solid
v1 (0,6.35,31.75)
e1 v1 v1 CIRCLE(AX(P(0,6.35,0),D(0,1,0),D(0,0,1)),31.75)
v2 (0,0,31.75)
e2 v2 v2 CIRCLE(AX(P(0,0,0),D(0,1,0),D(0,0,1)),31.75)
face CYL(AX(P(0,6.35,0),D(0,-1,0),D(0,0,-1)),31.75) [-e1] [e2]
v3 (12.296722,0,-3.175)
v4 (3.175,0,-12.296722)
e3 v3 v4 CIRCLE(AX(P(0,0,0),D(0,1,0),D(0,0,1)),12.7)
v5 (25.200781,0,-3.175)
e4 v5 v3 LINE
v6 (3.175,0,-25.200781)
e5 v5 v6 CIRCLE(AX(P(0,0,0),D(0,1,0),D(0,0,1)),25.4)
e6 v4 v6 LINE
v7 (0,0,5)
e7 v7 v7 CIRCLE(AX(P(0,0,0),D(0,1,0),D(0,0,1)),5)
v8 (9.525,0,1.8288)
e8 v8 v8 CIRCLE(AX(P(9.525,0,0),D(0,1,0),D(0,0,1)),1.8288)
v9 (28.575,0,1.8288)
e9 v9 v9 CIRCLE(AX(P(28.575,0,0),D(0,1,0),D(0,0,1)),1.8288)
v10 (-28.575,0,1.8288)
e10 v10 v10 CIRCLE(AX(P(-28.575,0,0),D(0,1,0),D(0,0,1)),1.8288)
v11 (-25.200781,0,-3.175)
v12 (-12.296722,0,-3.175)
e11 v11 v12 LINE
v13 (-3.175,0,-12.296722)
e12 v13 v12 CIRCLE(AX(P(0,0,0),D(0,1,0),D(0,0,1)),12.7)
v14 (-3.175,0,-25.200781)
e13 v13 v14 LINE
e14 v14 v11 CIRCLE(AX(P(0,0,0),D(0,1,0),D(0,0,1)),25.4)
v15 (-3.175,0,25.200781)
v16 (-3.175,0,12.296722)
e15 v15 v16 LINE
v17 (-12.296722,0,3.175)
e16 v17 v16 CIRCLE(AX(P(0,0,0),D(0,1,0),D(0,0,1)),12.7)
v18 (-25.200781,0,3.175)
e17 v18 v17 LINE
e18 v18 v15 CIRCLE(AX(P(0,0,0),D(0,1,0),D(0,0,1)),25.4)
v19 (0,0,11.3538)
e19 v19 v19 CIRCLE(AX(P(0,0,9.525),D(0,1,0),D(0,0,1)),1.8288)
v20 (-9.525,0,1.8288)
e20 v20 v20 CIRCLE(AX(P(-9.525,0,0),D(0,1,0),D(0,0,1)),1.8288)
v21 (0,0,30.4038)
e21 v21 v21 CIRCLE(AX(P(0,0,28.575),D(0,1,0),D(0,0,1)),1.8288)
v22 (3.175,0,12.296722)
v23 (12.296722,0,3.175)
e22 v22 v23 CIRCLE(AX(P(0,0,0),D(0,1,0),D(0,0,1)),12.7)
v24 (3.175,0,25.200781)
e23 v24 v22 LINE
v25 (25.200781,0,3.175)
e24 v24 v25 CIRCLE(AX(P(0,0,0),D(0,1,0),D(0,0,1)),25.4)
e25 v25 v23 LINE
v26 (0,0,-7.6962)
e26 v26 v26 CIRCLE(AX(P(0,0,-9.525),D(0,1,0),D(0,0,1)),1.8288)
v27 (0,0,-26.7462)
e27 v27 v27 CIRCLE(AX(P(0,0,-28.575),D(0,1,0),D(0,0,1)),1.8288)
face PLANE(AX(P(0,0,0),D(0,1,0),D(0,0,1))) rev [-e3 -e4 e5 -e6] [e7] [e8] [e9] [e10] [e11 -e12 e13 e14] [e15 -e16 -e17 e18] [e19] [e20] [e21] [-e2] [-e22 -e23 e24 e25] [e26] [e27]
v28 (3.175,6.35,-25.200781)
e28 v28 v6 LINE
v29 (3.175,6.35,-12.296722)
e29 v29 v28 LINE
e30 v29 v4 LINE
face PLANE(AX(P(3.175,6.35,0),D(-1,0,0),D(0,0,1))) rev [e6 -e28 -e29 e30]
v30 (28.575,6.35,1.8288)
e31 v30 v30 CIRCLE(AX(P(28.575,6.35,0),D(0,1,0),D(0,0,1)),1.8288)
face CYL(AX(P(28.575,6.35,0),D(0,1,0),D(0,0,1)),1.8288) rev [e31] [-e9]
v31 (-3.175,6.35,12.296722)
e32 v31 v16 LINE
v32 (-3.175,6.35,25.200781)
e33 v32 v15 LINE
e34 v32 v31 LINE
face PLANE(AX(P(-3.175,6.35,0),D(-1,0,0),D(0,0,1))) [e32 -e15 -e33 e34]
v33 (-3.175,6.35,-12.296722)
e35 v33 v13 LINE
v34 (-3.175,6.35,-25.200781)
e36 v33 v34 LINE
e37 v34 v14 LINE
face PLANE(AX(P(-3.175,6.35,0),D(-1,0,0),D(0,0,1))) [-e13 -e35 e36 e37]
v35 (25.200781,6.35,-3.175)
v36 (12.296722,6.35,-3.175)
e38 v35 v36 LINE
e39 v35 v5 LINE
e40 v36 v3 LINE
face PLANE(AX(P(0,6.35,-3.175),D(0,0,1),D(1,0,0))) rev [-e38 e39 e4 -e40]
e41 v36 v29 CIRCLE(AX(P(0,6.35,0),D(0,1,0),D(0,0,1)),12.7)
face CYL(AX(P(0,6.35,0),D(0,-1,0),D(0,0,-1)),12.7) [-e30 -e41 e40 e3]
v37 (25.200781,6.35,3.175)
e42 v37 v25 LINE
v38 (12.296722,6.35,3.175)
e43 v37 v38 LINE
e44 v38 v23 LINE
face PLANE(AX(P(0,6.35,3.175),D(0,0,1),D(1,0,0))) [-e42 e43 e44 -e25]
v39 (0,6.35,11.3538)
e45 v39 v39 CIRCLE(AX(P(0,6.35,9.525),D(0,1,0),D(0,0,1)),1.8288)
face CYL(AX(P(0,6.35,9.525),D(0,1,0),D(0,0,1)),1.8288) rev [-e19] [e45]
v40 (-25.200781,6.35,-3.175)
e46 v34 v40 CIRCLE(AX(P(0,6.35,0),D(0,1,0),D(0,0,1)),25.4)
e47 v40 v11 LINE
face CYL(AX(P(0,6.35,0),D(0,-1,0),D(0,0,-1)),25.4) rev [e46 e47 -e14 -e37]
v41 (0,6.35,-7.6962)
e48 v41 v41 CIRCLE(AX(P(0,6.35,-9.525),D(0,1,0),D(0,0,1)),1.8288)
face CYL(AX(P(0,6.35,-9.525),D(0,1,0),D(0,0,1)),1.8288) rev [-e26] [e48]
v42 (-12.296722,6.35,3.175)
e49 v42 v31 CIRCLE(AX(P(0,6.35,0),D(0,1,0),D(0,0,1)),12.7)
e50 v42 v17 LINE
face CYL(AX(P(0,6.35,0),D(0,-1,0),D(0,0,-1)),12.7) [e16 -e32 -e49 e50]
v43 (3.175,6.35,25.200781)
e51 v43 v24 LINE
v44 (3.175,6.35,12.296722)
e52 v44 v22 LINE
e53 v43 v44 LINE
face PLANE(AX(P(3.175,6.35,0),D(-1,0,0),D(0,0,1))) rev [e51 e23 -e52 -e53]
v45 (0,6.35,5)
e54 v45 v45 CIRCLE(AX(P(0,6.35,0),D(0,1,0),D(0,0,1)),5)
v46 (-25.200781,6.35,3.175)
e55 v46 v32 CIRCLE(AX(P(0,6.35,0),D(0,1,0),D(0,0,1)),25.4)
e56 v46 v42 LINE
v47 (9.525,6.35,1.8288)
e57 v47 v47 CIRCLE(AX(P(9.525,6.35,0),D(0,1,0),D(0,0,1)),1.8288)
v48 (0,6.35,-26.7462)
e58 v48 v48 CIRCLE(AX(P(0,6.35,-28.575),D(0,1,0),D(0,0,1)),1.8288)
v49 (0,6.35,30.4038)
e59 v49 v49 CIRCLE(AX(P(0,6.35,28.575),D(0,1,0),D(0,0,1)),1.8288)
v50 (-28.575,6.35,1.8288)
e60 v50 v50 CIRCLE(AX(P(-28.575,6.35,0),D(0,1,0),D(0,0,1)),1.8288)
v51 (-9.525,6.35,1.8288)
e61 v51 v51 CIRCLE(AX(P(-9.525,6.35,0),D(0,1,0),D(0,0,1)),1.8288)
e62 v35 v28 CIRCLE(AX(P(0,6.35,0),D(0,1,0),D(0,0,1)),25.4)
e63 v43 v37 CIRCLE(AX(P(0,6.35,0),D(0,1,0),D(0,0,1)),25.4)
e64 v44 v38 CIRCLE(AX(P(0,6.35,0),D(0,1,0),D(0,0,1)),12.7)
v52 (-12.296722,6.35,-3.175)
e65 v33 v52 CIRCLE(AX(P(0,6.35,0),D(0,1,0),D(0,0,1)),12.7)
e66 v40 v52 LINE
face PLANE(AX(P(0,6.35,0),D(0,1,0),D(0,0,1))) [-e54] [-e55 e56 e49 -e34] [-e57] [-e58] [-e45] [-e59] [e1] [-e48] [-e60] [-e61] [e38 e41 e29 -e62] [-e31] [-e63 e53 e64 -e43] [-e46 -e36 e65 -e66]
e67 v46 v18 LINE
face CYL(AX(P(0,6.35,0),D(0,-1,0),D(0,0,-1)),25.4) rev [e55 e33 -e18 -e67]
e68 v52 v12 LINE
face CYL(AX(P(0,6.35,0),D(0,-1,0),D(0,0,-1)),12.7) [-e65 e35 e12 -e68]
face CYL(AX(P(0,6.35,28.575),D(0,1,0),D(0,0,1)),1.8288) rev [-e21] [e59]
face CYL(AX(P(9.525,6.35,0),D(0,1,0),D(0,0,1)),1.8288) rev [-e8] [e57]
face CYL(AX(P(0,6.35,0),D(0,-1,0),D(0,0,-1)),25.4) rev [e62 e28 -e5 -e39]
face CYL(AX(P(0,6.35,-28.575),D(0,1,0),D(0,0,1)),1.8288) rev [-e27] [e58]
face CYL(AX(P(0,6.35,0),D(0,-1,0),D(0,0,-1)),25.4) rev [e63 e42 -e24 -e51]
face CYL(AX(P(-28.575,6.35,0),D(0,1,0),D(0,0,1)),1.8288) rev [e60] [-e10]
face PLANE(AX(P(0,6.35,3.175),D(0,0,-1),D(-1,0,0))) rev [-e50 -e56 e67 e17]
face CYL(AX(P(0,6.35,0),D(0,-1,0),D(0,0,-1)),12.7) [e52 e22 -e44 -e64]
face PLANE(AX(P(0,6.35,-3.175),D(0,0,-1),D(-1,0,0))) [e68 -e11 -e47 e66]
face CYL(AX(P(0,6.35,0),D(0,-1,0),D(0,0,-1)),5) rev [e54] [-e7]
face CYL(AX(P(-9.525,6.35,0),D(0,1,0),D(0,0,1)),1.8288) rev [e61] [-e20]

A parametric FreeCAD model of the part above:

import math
import FreeCAD as App
import Part
import Sketcher
Q = App.Units.Quantity

doc = App.newDocument("Part")
body = doc.addObject("PartDesign::Body", "Body")

# Sketch on XZ plane
sketch1 = body.newObject("Sketcher::SketchObject", "Sketch")
sketch1.AttachmentSupport = (doc.getObject("XZ_Plane"), [""])
sketch1.MapMode = "FlatFace"
sketch1.addGeometry(Part.Circle(App.Vector(0, 0, 0), App.Vector(0, 0, 1), 32), False)
sketch1.addGeometry(Part.ArcOfCircle(Part.Circle(App.Vector(0, 0, 0), App.Vector(0, 0, 1), 25), math.radians(-173), math.radians(-97)), False)
sketch1.addGeometry(Part.LineSegment(App.Vector(-3, -25, 0), App.Vector(-3, -12, 0)), False)
sketch1.addGeometry(Part.ArcOfCircle(Part.Circle(App.Vector(0, 0, 0), App.Vector(0, 0, 1), 13), math.radians(-166), math.radians(-104)), False)
sketch1.addGeometry(Part.LineSegment(App.Vector(-12, -3, 0), App.Vector(-25, -3, 0)), False)
sketch1.addGeometry(Part.ArcOfCircle(Part.Circle(App.Vector(0, 0, 0), App.Vector(0, 0, 1), 25), math.radians(-83), math.radians(-7)), False)
sketch1.addGeometry(Part.LineSegment(App.Vector(25, -3, 0), App.Vector(12, -3, 0)), False)
sketch1.addGeometry(Part.ArcOfCircle(Part.Circle(App.Vector(0, 0, 0), App.Vector(0, 0, 1), 13), math.radians(-76), math.radians(-14)), False)
sketch1.addGeometry(Part.LineSegment(App.Vector(3, -12, 0), App.Vector(3, -25, 0)), False)
sketch1.addGeometry(Part.ArcOfCircle(Part.Circle(App.Vector(0, 0, 0), App.Vector(0, 0, 1), 25), math.radians(7), math.radians(83)), False)
sketch1.addGeometry(Part.LineSegment(App.Vector(3, 25, 0), App.Vector(3, 12, 0)), False)
sketch1.addGeometry(Part.ArcOfCircle(Part.Circle(App.Vector(0, 0, 0), App.Vector(0, 0, 1), 13), math.radians(14), math.radians(76)), False)
sketch1.addGeometry(Part.LineSegment(App.Vector(12, 3, 0), App.Vector(25, 3, 0)), False)
sketch1.addGeometry(Part.ArcOfCircle(Part.Circle(App.Vector(0, 0, 0), App.Vector(0, 0, 1), 25), math.radians(97), math.radians(173)), False)
sketch1.addGeometry(Part.LineSegment(App.Vector(-25, 3, 0), App.Vector(-12, 3, 0)), False)
sketch1.addGeometry(Part.ArcOfCircle(Part.Circle(App.Vector(0, 0, 0), App.Vector(0, 0, 1), 13), math.radians(104), math.radians(166)), False)
sketch1.addGeometry(Part.LineSegment(App.Vector(-3, 12, 0), App.Vector(-3, 25, 0)), False)
sketch1.addGeometry(Part.Circle(App.Vector(0, 0, 0), App.Vector(0, 0, 1), 5), False)
sketch1.addConstraint(Sketcher.Constraint("Coincident", 1, 2, 2, 1))
sketch1.addConstraint(Sketcher.Constraint("Coincident", 2, 2, 3, 2))
sketch1.addConstraint(Sketcher.Constraint("Coincident", 3, 1, 4, 1))
sketch1.addConstraint(Sketcher.Constraint("Coincident", 4, 2, 1, 1))
sketch1.addConstraint(Sketcher.Constraint("Coincident", 5, 2, 6, 1))
sketch1.addConstraint(Sketcher.Constraint("Coincident", 6, 2, 7, 2))
sketch1.addConstraint(Sketcher.Constraint("Coincident", 7, 1, 8, 1))
sketch1.addConstraint(Sketcher.Constraint("Coincident", 8, 2, 5, 1))
sketch1.addConstraint(Sketcher.Constraint("Coincident", 9, 2, 10, 1))
sketch1.addConstraint(Sketcher.Constraint("Coincident", 10, 2, 11, 2))
sketch1.addConstraint(Sketcher.Constraint("Coincident", 11, 1, 12, 1))
sketch1.addConstraint(Sketcher.Constraint("Coincident", 12, 2, 9, 1))
sketch1.addConstraint(Sketcher.Constraint("Coincident", 13, 2, 14, 1))
sketch1.addConstraint(Sketcher.Constraint("Coincident", 14, 2, 15, 2))
sketch1.addConstraint(Sketcher.Constraint("Coincident", 15, 1, 16, 1))
sketch1.addConstraint(Sketcher.Constraint("Coincident", 16, 2, 13, 1))
sketch1.addConstraint(Sketcher.Constraint("Vertical", 2))
sketch1.addConstraint(Sketcher.Constraint("Horizontal", 4))
sketch1.addConstraint(Sketcher.Constraint("Horizontal", 6))
sketch1.addConstraint(Sketcher.Constraint("Vertical", 8))
sketch1.addConstraint(Sketcher.Constraint("Vertical", 10))
sketch1.addConstraint(Sketcher.Constraint("Horizontal", 12))
sketch1.addConstraint(Sketcher.Constraint("Horizontal", 14))
sketch1.addConstraint(Sketcher.Constraint("Vertical", 16))
sketch1.addConstraint(Sketcher.Constraint("Coincident", 0, 3, -1, 1))
sketch1.addConstraint(Sketcher.Constraint("Coincident", 1, 3, -1, 1))
sketch1.addConstraint(Sketcher.Constraint("Coincident", 3, 3, -1, 1))
sketch1.addConstraint(Sketcher.Constraint("Coincident", 5, 3, -1, 1))
sketch1.addConstraint(Sketcher.Constraint("Coincident", 7, 3, -1, 1))
sketch1.addConstraint(Sketcher.Constraint("Coincident", 9, 3, -1, 1))
sketch1.addConstraint(Sketcher.Constraint("Coincident", 11, 3, -1, 1))
sketch1.addConstraint(Sketcher.Constraint("Coincident", 13, 3, -1, 1))
sketch1.addConstraint(Sketcher.Constraint("Coincident", 15, 3, -1, 1))
sketch1.addConstraint(Sketcher.Constraint("Coincident", 17, 3, -1, 1))
sketch1.addConstraint(Sketcher.Constraint("Equal", 1, 5))
sketch1.addConstraint(Sketcher.Constraint("Equal", 3, 7))
sketch1.addConstraint(Sketcher.Constraint("Equal", 5, 9))
sketch1.addConstraint(Sketcher.Constraint("Equal", 7, 11))
sketch1.addConstraint(Sketcher.Constraint("Equal", 9, 13))
sketch1.addConstraint(Sketcher.Constraint("Equal", 11, 15))
sketch1.addConstraint(Sketcher.Constraint("Horizontal", 4, 2, 5, 2))
sketch1.addConstraint(Sketcher.Constraint("Horizontal", 2, 2, 7, 1))
sketch1.addConstraint(Sketcher.Constraint("Horizontal", 12, 2, 13, 2))
sketch1.addConstraint(Sketcher.Constraint("Horizontal", 10, 2, 15, 1))
sketch1.addConstraint(Sketcher.Constraint("Vertical", 8, 2, 9, 2))
sketch1.addConstraint(Sketcher.Constraint("Vertical", 6, 2, 11, 1))
sketch1.addConstraint(Sketcher.Constraint("Equal", 14, 2))
sketch1.addConstraint(Sketcher.Constraint("Radius", 1, Q("1 in")))
sketch1.addConstraint(Sketcher.Constraint("Diameter", 0, Q("2.5 in")))
sketch1.addConstraint(Sketcher.Constraint("Radius", 3, Q("0.5 in")))
sketch1.addConstraint(Sketcher.Constraint("Diameter", 17, 10.0))
sketch1.addConstraint(Sketcher.Constraint("DistanceX", 2, 2, 7, 1, Q("0.25 in")))
pad1 = body.newObject("PartDesign::Pad", "Pad")
pad1.Profile = sketch1
pad1.Length = Q("0.25 in")
pad1.Reversed = True

# Sketch on YZ plane
sketch2 = body.newObject("Sketcher::SketchObject", "Sketch001")
sketch2.AttachmentSupport = (doc.getObject("YZ_Plane"), [""])
sketch2.MapMode = "FlatFace"
sketch2.addGeometry(Part.LineSegment(App.Vector(-7.4, 28.6, 0), App.Vector(6.3, 28.6, 0)), False)
sketch2.addGeometry(Part.LineSegment(App.Vector(6.3, 28.6, 0), App.Vector(6.3, 30.4, 0)), False)
sketch2.addGeometry(Part.LineSegment(App.Vector(6.3, 30.4, 0), App.Vector(-6.3, 30.4, 0)), False)
sketch2.addGeometry(Part.LineSegment(App.Vector(-6.3, 30.4, 0), App.Vector(-7.4, 28.6, 0)), False)
sketch2.addGeometry(Part.LineSegment(App.Vector(6.3, 28.6, 0), App.Vector(-7.4, 28.6, 0)), True)  # axis
sketch2.addConstraint(Sketcher.Constraint("Coincident", 0, 2, 1, 1))
sketch2.addConstraint(Sketcher.Constraint("Coincident", 1, 2, 2, 1))
sketch2.addConstraint(Sketcher.Constraint("Coincident", 2, 2, 3, 1))
sketch2.addConstraint(Sketcher.Constraint("Coincident", 3, 2, 0, 1))
sketch2.addConstraint(Sketcher.Constraint("Horizontal", 0))
sketch2.addConstraint(Sketcher.Constraint("Vertical", 1))
sketch2.addConstraint(Sketcher.Constraint("Horizontal", 2))
sketch2.addConstraint(Sketcher.Constraint("Horizontal", 4))
sketch2.addConstraint(Sketcher.Constraint("Coincident", 4, 1, 0, 2))
sketch2.addConstraint(Sketcher.Constraint("Equal", 0, 4))
sketch2.addConstraint(Sketcher.Constraint("DistanceX", 2, 2, 2, 1, Q("0.5 in")))
sketch2.addConstraint(Sketcher.Constraint("Angle", 3, Q("-121 deg")))
sketch2.addConstraint(Sketcher.Constraint("DistanceY", 1, 1, 1, 2, Q("0.072 in")))
sketch2.addConstraint(Sketcher.Constraint("DistanceX", -1, 1, 0, 2, Q("0.25 in")))
sketch2.addConstraint(Sketcher.Constraint("DistanceY", -1, 1, 0, 2, Q("1.125 in")))
groove = body.newObject("PartDesign::Groove", "Groove")
groove.Profile = sketch2
groove.ReferenceAxis = (sketch2, ["Axis0"])
groove.Angle = 360
doc.recompute()

linearpattern = body.newObject("PartDesign::LinearPattern", "LinearPattern")
linearpattern.Originals = [groove]
linearpattern.Direction = (doc.getObject("Z_Axis"), [""])
linearpattern.Mode = "offset"
linearpattern.Offset = Q("0.75 in")
linearpattern.Occurrences = 2
linearpattern.Reversed = True
body.Tip = linearpattern
doc.recompute()

polarpattern = body.newObject("PartDesign::PolarPattern", "PolarPattern")
polarpattern.Originals = [groove]
polarpattern.Axis = (doc.getObject("Y_Axis"), [""])
polarpattern.Angle = 360
polarpattern.Occurrences = 4
body.Tip = polarpattern

# Sketch on XY plane
sketch3 = body.newObject("Sketcher::SketchObject", "Sketch002")
sketch3.AttachmentSupport = (doc.getObject("XY_Plane"), [""])
sketch3.MapMode = "FlatFace"
sketch3.addGeometry(Part.LineSegment(App.Vector(9.5, -7.4, 0), App.Vector(9.5, 6.3, 0)), False)
sketch3.addGeometry(Part.LineSegment(App.Vector(9.5, 6.3, 0), App.Vector(11.4, 6.3, 0)), False)
sketch3.addGeometry(Part.LineSegment(App.Vector(11.4, 6.3, 0), App.Vector(11.4, -6.3, 0)), False)
sketch3.addGeometry(Part.LineSegment(App.Vector(11.4, -6.3, 0), App.Vector(9.5, -7.4, 0)), False)
sketch3.addGeometry(Part.LineSegment(App.Vector(9.5, 6.3, 0), App.Vector(9.5, -7.4, 0)), True)  # axis
sketch3.addConstraint(Sketcher.Constraint("Coincident", 0, 2, 1, 1))
sketch3.addConstraint(Sketcher.Constraint("Coincident", 1, 2, 2, 1))
sketch3.addConstraint(Sketcher.Constraint("Coincident", 2, 2, 3, 1))
sketch3.addConstraint(Sketcher.Constraint("Coincident", 3, 2, 0, 1))
sketch3.addConstraint(Sketcher.Constraint("Vertical", 0))
sketch3.addConstraint(Sketcher.Constraint("Horizontal", 1))
sketch3.addConstraint(Sketcher.Constraint("Vertical", 2))
sketch3.addConstraint(Sketcher.Constraint("Vertical", 4))
sketch3.addConstraint(Sketcher.Constraint("Coincident", 4, 1, 0, 2))
sketch3.addConstraint(Sketcher.Constraint("Equal", 0, 4))
sketch3.addConstraint(Sketcher.Constraint("DistanceY", 2, 2, 2, 1, Q("0.5 in")))
sketch3.addConstraint(Sketcher.Constraint("Angle", 3, Q("-149 deg")))
sketch3.addConstraint(Sketcher.Constraint("DistanceX", 1, 1, 1, 2, Q("0.072 in")))
sketch3.addConstraint(Sketcher.Constraint("DistanceY", -1, 1, 0, 2, Q("0.25 in")))
sketch3.addConstraint(Sketcher.Constraint("DistanceX", -1, 1, 0, 2, Q("0.375 in")))
groove2 = body.newObject("PartDesign::Groove", "Groove001")
groove2.Profile = sketch3
groove2.ReferenceAxis = (sketch3, ["Axis0"])
groove2.Angle = 360

# Sketch on YZ plane
sketch4 = body.newObject("Sketcher::SketchObject", "Sketch003")
sketch4.AttachmentSupport = (doc.getObject("YZ_Plane"), [""])
sketch4.MapMode = "FlatFace"
sketch4.addGeometry(Part.LineSegment(App.Vector(-7.4, -9.5, 0), App.Vector(6.3, -9.5, 0)), False)
sketch4.addGeometry(Part.LineSegment(App.Vector(6.3, -9.5, 0), App.Vector(6.3, -11.4, 0)), False)
sketch4.addGeometry(Part.LineSegment(App.Vector(6.3, -11.4, 0), App.Vector(-6.3, -11.4, 0)), False)
sketch4.addGeometry(Part.LineSegment(App.Vector(-6.3, -11.4, 0), App.Vector(-7.4, -9.5, 0)), False)
sketch4.addGeometry(Part.LineSegment(App.Vector(6.3, -9.5, 0), App.Vector(-7.4, -9.5, 0)), True)  # axis
sketch4.addConstraint(Sketcher.Constraint("Coincident", 0, 2, 1, 1))
sketch4.addConstraint(Sketcher.Constraint("Coincident", 1, 2, 2, 1))
sketch4.addConstraint(Sketcher.Constraint("Coincident", 2, 2, 3, 1))
sketch4.addConstraint(Sketcher.Constraint("Coincident", 3, 2, 0, 1))
sketch4.addConstraint(Sketcher.Constraint("Horizontal", 0))
sketch4.addConstraint(Sketcher.Constraint("Vertical", 1))
sketch4.addConstraint(Sketcher.Constraint("Horizontal", 2))
sketch4.addConstraint(Sketcher.Constraint("Horizontal", 4))
sketch4.addConstraint(Sketcher.Constraint("Coincident", 4, 1, 0, 2))
sketch4.addConstraint(Sketcher.Constraint("Equal", 0, 4))
sketch4.addConstraint(Sketcher.Constraint("DistanceX", 2, 2, 2, 1, Q("0.5 in")))
sketch4.addConstraint(Sketcher.Constraint("Angle", 3, Q("121 deg")))
sketch4.addConstraint(Sketcher.Constraint("DistanceY", 1, 2, 1, 1, Q("0.072 in")))
sketch4.addConstraint(Sketcher.Constraint("DistanceX", -1, 1, 0, 2, Q("0.25 in")))
sketch4.addConstraint(Sketcher.Constraint("DistanceY", 0, 2, -1, 1, Q("0.375 in")))
groove3 = body.newObject("PartDesign::Groove", "Groove002")
groove3.Profile = sketch4
groove3.ReferenceAxis = (sketch4, ["Axis0"])
groove3.Angle = 360

# Sketch on XY plane
sketch5 = body.newObject("Sketcher::SketchObject", "Sketch004")
sketch5.AttachmentSupport = (doc.getObject("XY_Plane"), [""])
sketch5.MapMode = "FlatFace"
sketch5.addGeometry(Part.LineSegment(App.Vector(-9.5, -7.4, 0), App.Vector(-9.5, 6.3, 0)), False)
sketch5.addGeometry(Part.LineSegment(App.Vector(-9.5, 6.3, 0), App.Vector(-11.4, 6.3, 0)), False)
sketch5.addGeometry(Part.LineSegment(App.Vector(-11.4, 6.3, 0), App.Vector(-11.4, -6.3, 0)), False)
sketch5.addGeometry(Part.LineSegment(App.Vector(-11.4, -6.3, 0), App.Vector(-9.5, -7.4, 0)), False)
sketch5.addGeometry(Part.LineSegment(App.Vector(-9.5, 6.3, 0), App.Vector(-9.5, -7.4, 0)), True)  # axis
sketch5.addConstraint(Sketcher.Constraint("Coincident", 0, 2, 1, 1))
sketch5.addConstraint(Sketcher.Constraint("Coincident", 1, 2, 2, 1))
sketch5.addConstraint(Sketcher.Constraint("Coincident", 2, 2, 3, 1))
sketch5.addConstraint(Sketcher.Constraint("Coincident", 3, 2, 0, 1))
sketch5.addConstraint(Sketcher.Constraint("Vertical", 0))
sketch5.addConstraint(Sketcher.Constraint("Horizontal", 1))
sketch5.addConstraint(Sketcher.Constraint("Vertical", 2))
sketch5.addConstraint(Sketcher.Constraint("Vertical", 4))
sketch5.addConstraint(Sketcher.Constraint("Coincident", 4, 1, 0, 2))
sketch5.addConstraint(Sketcher.Constraint("Equal", 0, 4))
sketch5.addConstraint(Sketcher.Constraint("DistanceY", 2, 2, 2, 1, Q("0.5 in")))
sketch5.addConstraint(Sketcher.Constraint("Angle", 3, Q("-31 deg")))
sketch5.addConstraint(Sketcher.Constraint("DistanceX", 1, 2, 1, 1, Q("0.072 in")))
sketch5.addConstraint(Sketcher.Constraint("DistanceY", -1, 1, 0, 2, Q("0.25 in")))
sketch5.addConstraint(Sketcher.Constraint("DistanceX", 0, 2, -1, 1, Q("0.375 in")))
groove4 = body.newObject("PartDesign::Groove", "Groove003")
groove4.Profile = sketch5
groove4.ReferenceAxis = (sketch5, ["Axis0"])
groove4.Angle = 360

doc.recompute()
